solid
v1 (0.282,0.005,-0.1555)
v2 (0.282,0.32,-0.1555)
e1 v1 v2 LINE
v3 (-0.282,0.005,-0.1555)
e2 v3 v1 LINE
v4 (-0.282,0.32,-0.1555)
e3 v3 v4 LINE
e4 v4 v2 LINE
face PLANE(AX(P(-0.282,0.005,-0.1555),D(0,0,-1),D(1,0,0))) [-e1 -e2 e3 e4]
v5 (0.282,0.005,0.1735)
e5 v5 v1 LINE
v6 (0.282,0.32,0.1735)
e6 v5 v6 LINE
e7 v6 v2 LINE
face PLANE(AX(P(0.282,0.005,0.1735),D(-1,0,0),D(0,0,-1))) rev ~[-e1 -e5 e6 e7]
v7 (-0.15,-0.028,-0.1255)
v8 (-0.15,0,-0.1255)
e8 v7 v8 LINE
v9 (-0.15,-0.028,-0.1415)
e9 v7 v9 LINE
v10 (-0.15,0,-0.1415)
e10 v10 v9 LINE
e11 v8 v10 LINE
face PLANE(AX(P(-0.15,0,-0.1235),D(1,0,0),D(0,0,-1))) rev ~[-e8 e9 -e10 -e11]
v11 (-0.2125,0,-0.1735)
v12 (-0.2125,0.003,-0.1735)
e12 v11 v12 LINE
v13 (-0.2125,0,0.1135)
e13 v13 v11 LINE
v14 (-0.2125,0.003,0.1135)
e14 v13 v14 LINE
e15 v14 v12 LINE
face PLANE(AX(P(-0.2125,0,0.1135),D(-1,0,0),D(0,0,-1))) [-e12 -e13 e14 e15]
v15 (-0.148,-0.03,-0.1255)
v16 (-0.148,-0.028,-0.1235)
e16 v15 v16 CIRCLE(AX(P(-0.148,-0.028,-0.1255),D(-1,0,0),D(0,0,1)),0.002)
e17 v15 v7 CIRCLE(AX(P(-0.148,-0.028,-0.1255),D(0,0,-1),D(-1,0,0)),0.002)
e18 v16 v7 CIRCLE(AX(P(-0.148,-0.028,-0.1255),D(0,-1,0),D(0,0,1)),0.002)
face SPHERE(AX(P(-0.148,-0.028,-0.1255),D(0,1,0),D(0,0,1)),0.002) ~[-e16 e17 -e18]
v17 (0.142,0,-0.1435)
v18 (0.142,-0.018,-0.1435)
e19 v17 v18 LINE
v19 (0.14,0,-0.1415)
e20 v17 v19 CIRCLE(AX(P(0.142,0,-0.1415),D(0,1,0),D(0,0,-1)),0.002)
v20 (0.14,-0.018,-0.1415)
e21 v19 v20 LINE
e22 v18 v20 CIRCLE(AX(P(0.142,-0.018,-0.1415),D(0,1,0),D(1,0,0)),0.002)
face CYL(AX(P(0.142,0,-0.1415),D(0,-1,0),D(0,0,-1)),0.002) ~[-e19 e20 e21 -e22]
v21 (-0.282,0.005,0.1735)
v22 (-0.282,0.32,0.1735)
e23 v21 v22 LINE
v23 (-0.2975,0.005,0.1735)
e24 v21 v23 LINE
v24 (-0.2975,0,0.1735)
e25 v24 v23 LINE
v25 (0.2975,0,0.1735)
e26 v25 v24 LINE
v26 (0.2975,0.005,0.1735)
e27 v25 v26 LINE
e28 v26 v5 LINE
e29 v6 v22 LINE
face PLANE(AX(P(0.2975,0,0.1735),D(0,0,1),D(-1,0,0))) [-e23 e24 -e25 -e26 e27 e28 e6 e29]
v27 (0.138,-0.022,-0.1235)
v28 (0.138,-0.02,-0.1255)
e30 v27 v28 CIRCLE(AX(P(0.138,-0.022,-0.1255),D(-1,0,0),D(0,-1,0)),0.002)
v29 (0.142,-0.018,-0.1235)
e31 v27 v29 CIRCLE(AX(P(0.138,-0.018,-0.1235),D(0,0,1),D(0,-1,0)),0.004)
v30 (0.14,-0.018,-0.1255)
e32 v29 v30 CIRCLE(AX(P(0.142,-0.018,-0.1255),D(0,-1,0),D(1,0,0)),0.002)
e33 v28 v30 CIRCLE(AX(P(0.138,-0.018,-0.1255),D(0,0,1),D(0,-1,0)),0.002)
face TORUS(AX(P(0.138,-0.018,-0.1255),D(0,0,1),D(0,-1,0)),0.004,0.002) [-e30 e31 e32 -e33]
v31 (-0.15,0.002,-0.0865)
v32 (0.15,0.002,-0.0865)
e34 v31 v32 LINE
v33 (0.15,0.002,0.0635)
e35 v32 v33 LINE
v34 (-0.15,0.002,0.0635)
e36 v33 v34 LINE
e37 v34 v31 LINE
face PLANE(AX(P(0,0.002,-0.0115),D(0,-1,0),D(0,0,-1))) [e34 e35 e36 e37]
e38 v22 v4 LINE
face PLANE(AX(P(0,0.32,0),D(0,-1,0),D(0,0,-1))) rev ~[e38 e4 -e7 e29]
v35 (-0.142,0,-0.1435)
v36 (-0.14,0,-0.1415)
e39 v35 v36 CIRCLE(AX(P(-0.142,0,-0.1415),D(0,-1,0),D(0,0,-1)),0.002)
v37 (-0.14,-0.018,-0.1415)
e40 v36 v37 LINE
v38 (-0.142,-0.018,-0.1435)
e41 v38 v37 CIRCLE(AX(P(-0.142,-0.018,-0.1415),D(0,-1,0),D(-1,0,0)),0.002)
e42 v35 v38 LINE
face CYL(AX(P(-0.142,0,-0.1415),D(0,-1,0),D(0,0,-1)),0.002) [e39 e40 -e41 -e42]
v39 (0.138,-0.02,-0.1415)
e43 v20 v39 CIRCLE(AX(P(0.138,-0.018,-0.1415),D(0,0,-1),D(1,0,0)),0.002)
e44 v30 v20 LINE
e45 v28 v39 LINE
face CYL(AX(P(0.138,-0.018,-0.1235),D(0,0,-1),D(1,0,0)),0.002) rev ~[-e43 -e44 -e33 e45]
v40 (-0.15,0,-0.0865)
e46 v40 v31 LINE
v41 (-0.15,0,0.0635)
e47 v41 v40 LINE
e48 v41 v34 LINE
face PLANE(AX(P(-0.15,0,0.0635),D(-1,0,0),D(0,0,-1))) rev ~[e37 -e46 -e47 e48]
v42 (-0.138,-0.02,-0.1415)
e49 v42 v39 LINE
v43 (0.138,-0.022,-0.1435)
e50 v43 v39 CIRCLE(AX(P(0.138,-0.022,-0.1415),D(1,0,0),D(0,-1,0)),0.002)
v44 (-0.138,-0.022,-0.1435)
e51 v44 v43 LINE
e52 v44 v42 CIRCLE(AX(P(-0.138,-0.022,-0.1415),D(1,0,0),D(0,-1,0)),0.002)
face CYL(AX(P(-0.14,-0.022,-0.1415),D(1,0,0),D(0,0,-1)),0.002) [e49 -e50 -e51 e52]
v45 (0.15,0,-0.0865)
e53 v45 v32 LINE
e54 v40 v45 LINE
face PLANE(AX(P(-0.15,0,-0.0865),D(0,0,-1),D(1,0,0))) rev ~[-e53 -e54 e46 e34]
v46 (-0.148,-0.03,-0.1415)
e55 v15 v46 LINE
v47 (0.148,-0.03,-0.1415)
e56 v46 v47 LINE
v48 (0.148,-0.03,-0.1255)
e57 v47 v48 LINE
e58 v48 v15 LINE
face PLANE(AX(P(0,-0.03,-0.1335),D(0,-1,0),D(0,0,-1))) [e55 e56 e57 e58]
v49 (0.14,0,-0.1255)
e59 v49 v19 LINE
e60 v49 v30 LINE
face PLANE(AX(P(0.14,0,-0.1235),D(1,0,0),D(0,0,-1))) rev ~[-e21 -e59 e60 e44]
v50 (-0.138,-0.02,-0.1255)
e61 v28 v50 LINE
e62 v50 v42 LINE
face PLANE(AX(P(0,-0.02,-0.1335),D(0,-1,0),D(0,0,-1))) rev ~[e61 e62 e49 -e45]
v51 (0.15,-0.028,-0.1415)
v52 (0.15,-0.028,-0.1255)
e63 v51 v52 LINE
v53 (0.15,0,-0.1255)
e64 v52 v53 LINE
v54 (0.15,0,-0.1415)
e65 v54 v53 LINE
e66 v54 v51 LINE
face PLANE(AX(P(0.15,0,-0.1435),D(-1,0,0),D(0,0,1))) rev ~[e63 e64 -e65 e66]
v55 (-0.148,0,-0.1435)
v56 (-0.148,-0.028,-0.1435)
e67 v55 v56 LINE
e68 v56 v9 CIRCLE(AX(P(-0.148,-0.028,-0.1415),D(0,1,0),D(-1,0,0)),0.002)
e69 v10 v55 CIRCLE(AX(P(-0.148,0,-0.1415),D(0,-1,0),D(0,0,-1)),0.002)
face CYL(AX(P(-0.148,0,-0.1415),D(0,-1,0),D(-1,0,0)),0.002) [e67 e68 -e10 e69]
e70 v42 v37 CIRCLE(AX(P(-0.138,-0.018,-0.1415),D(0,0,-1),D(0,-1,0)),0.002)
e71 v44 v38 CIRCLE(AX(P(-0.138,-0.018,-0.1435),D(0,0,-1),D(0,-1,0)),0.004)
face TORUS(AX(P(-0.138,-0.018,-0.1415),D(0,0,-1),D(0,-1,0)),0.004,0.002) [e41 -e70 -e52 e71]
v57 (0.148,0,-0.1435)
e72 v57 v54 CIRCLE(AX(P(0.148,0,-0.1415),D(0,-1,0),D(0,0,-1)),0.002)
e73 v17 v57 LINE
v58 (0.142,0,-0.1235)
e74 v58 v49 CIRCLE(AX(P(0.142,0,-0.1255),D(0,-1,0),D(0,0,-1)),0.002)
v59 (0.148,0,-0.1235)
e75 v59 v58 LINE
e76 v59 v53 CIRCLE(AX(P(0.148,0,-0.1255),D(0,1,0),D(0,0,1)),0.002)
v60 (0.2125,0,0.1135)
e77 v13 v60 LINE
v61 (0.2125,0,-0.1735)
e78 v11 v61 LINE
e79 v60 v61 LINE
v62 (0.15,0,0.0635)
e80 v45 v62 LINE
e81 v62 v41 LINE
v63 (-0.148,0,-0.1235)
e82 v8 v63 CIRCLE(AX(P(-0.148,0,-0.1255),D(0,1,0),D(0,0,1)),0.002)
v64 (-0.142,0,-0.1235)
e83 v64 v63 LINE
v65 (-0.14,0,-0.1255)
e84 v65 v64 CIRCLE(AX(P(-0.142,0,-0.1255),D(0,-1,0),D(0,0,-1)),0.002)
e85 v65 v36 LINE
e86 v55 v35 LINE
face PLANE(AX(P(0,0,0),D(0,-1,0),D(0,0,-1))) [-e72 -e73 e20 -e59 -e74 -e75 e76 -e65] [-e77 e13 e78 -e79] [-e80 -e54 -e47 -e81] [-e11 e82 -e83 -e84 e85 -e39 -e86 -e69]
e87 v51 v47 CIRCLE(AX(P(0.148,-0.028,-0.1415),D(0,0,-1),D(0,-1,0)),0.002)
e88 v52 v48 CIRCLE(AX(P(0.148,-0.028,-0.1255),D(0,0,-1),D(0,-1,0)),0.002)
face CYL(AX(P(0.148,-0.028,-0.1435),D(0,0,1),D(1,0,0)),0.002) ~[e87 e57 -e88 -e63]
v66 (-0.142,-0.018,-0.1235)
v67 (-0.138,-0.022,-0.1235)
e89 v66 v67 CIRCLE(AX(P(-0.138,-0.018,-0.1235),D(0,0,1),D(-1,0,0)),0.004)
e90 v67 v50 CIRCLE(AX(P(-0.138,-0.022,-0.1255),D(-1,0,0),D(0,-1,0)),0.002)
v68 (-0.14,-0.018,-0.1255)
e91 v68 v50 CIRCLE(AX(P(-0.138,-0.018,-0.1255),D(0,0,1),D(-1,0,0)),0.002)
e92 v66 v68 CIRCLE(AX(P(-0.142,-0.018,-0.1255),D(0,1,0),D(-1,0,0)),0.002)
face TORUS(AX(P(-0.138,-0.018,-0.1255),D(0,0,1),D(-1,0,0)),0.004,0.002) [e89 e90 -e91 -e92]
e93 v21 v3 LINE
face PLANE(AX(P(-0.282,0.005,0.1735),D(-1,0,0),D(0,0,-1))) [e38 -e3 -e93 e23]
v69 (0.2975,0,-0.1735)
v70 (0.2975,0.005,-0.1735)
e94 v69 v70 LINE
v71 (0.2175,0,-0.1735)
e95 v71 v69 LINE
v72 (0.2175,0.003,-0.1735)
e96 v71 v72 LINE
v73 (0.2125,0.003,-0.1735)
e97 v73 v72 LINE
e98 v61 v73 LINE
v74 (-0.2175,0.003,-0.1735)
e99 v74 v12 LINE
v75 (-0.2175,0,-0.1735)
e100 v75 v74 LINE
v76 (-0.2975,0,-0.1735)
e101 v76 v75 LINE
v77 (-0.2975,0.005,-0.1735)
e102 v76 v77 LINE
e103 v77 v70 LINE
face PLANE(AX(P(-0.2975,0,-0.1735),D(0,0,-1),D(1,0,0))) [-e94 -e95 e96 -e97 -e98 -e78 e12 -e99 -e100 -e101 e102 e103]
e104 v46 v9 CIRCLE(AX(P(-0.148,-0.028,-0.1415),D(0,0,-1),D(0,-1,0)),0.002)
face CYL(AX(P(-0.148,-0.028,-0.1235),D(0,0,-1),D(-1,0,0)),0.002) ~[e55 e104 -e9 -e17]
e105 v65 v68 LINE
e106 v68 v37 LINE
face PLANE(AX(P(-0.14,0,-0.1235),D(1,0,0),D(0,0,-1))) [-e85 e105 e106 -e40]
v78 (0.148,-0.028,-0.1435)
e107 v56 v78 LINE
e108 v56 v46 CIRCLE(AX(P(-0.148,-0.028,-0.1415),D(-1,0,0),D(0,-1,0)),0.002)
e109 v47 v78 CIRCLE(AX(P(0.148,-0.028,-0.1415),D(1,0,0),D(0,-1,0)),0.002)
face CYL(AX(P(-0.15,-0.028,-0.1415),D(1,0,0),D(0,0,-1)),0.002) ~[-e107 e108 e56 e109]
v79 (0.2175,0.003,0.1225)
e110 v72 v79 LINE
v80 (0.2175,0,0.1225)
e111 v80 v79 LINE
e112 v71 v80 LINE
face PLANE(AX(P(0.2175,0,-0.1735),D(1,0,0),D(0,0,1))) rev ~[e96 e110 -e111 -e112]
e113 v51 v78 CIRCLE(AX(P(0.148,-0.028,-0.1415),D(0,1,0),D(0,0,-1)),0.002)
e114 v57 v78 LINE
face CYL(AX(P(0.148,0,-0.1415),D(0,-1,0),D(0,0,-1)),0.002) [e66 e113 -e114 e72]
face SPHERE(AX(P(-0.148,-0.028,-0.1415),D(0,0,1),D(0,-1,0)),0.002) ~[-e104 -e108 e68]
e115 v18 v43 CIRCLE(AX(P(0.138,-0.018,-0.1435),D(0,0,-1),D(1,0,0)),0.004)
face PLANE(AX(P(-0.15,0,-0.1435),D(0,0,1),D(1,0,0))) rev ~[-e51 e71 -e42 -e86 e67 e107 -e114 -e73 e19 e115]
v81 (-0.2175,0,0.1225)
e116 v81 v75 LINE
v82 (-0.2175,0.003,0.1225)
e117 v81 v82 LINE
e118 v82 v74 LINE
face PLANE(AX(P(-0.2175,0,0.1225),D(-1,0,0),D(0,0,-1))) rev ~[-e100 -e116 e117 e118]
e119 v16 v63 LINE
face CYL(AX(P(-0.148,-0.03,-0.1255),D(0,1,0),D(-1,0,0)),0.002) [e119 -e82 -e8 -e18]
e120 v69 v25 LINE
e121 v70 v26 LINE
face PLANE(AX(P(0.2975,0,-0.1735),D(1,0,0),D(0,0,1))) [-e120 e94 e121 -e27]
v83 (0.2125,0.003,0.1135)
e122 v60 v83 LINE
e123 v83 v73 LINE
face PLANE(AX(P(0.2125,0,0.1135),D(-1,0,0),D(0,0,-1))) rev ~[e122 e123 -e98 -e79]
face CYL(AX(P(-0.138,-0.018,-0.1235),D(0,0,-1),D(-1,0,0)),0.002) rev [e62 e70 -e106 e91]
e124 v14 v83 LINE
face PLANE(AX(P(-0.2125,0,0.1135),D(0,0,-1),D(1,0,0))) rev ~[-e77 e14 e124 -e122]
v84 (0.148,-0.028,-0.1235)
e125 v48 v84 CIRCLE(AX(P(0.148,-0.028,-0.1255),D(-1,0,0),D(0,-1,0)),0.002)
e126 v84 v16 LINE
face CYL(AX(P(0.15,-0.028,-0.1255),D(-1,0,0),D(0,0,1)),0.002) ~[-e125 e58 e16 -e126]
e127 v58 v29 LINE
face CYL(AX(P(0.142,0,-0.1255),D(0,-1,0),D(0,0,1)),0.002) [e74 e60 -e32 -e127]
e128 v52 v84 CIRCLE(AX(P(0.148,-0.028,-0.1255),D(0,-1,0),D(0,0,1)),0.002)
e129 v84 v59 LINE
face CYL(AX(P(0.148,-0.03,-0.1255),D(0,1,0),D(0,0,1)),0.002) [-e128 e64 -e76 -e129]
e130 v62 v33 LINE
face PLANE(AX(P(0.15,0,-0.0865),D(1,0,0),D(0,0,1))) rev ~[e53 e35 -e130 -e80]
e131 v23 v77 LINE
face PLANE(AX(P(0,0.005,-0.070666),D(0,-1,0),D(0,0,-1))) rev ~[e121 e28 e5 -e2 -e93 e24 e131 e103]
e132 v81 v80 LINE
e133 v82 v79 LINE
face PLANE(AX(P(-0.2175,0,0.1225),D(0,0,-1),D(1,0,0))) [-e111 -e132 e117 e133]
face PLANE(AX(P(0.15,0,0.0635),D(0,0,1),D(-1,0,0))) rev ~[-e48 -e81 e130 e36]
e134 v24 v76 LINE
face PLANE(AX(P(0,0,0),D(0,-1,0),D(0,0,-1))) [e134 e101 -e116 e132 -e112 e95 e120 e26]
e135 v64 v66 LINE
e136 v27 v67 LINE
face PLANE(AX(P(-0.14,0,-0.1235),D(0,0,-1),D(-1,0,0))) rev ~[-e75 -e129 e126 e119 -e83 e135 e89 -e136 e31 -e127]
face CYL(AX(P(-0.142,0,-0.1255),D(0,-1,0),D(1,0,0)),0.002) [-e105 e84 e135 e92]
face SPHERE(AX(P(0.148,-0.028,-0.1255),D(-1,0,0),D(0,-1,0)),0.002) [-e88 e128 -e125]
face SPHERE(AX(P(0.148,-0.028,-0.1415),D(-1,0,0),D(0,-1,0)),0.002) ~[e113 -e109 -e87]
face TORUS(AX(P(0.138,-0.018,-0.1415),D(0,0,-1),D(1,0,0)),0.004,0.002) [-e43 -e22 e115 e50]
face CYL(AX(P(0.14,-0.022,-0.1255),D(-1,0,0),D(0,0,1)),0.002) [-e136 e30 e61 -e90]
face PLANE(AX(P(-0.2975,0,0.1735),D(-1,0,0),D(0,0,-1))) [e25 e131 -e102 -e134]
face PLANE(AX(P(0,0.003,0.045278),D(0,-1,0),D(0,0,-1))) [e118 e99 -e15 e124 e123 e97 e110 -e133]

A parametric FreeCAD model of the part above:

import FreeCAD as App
import Part
import Sketcher

V = App.Vector
Q = App.Units.Quantity


def edges_at(feature, points):
    """Names of the edges that pass closest to the given points."""
    edges = feature.Shape.Edges
    near = lambda p: min(range(len(edges)), key=lambda i: edges[i].distToShape(Part.Vertex(*p))[0])
    return sorted({f"Edge{near(p) + 1}" for p in points})


def add_polygon(sketch, points):
    """Adds a closed chain of lines whose ends are joined by coincident constraints."""
    first, n = sketch.GeometryCount, len(points)
    for a, b in zip(points, points[1:] + points[:1]):
        sketch.addGeometry(Part.LineSegment(App.Vector(*a, 0), App.Vector(*b, 0)), False)
    for i in range(n):
        sketch.addConstraint(Sketcher.Constraint("Coincident", first + i, 2, first + (i + 1) % n, 1))

doc = App.newDocument("Part")
body = doc.addObject("PartDesign::Body", "Body")

sketch1 = body.newObject("Sketcher::SketchObject", "Sketch")
sketch1.AttachmentSupport = (doc.getObject("XZ_Plane"), [""])
sketch1.MapMode = "FlatFace"
add_polygon(sketch1, [(-0.3, 0.17), (-0.3, -0.17), (0.3, -0.17), (0.3, 0.17)])
sketch1.addConstraint(Sketcher.Constraint("Vertical", 0))
sketch1.addConstraint(Sketcher.Constraint("Horizontal", 1))
sketch1.addConstraint(Sketcher.Constraint("Vertical", 2))
sketch1.addConstraint(Sketcher.Constraint("Horizontal", 3))
sketch1.addConstraint(Sketcher.Constraint("Symmetric", 0, 2, 2, 2, -1, 1))
sketch1.addConstraint(Sketcher.Constraint("DistanceX", 0, 2, -1, 1, Q("0.2975 mm")))
sketch1.addConstraint(Sketcher.Constraint("DistanceY", 0, 2, 0, 1, Q("0.347 mm")))
pad1 = body.newObject("PartDesign::Pad", "Pad")
pad1.Profile = sketch1
pad1.Length = 0.32
pad1.Reversed = True

sketch2 = body.newObject("Sketcher::SketchObject", "Sketch001")
sketch2.AttachmentSupport = (doc.getObject("XZ_Plane"), [""])
sketch2.MapMode = "FlatFace"
sketch2.AttachmentOffset = App.Placement(V(0, 0, -0.005), App.Rotation())
add_polygon(sketch2, [(0.297, -0.173), (0.297, 0.173), (0.282, 0.173), (0.282, -0.155), (-0.282, -0.155), (-0.282, 0.173), (-0.297, 0.173), (-0.297, -0.173)])
sketch2.addConstraint(Sketcher.Constraint("Vertical", 0))
sketch2.addConstraint(Sketcher.Constraint("Horizontal", 1))
sketch2.addConstraint(Sketcher.Constraint("Vertical", 2))
sketch2.addConstraint(Sketcher.Constraint("Horizontal", 3))
sketch2.addConstraint(Sketcher.Constraint("Vertical", 4))
sketch2.addConstraint(Sketcher.Constraint("Horizontal", 5))
sketch2.addConstraint(Sketcher.Constraint("Vertical", 6))
sketch2.addConstraint(Sketcher.Constraint("Horizontal", 7))
sketch2.addConstraint(Sketcher.Constraint("Symmetric", 0, 2, 6, 2, -1, 1))
sketch2.addConstraint(Sketcher.Constraint("Symmetric", 1, 2, 4, 2, -2))
sketch2.addConstraint(Sketcher.Constraint("DistanceX", -1, 1, 1, 2, Q("0.282 mm")))
sketch2.addConstraint(Sketcher.Constraint("DistanceX", 7, 1, 7, 2, Q("0.595 mm")))
sketch2.addConstraint(Sketcher.Constraint("DistanceY", 0, 1, 0, 2, Q("0.347 mm")))
sketch2.addConstraint(Sketcher.Constraint("DistanceY", 2, 2, 2, 1, Q("0.329 mm")))
pocket1 = body.newObject("PartDesign::Pocket", "Pocket")
pocket1.Profile = sketch2
pocket1.Type = "ThroughAll"

sketch3 = body.newObject("Sketcher::SketchObject", "Sketch002")
sketch3.AttachmentSupport = (doc.getObject("XZ_Plane"), [""])
sketch3.MapMode = "FlatFace"
add_polygon(sketch3, [(0.217, 0.122), (-0.217, 0.122), (-0.217, -0.173), (-0.212, -0.173), (-0.212, 0.114), (0.212, 0.114), (0.212, -0.173), (0.217, -0.173)])
sketch3.addConstraint(Sketcher.Constraint("Horizontal", 0))
sketch3.addConstraint(Sketcher.Constraint("Vertical", 1))
sketch3.addConstraint(Sketcher.Constraint("Horizontal", 2))
sketch3.addConstraint(Sketcher.Constraint("Vertical", 3))
sketch3.addConstraint(Sketcher.Constraint("Horizontal", 4))
sketch3.addConstraint(Sketcher.Constraint("Vertical", 5))
sketch3.addConstraint(Sketcher.Constraint("Horizontal", 6))
sketch3.addConstraint(Sketcher.Constraint("Vertical", 7))
sketch3.addConstraint(Sketcher.Constraint("Symmetric", 2, 2, 5, 2, -2))
sketch3.addConstraint(Sketcher.Constraint("Equal", 2, 6))
sketch3.addConstraint(Sketcher.Constraint("DistanceX", 0, 2, -1, 1, Q("0.2175 mm")))
sketch3.addConstraint(Sketcher.Constraint("DistanceX", 2, 1, 2, 2, Q("0.005 mm")))
sketch3.addConstraint(Sketcher.Constraint("DistanceY", 1, 2, 1, 1, Q("0.296 mm")))
sketch3.addConstraint(Sketcher.Constraint("DistanceY", 3, 1, 3, 2, Q("0.287 mm")))
sketch3.addConstraint(Sketcher.Constraint("DistanceY", -1, 1, 0, 2, Q("0.1225 mm")))
pocket2 = body.newObject("PartDesign::Pocket", "Pocket001")
pocket2.Profile = sketch3
pocket2.Length = 0.003

sketch4 = body.newObject("Sketcher::SketchObject", "Sketch003")
sketch4.AttachmentSupport = (doc.getObject("XZ_Plane"), [""])
sketch4.MapMode = "FlatFace"
add_polygon(sketch4, [(-0.15, 0.06), (-0.15, -0.09), (0.15, -0.09), (0.15, 0.06)])
sketch4.addConstraint(Sketcher.Constraint("Vertical", 0))
sketch4.addConstraint(Sketcher.Constraint("Horizontal", 1))
sketch4.addConstraint(Sketcher.Constraint("Vertical", 2))
sketch4.addConstraint(Sketcher.Constraint("Horizontal", 3))
sketch4.addConstraint(Sketcher.Constraint("DistanceY", 0, 2, 0, 1, Q("0.15 mm")))
sketch4.addConstraint(Sketcher.Constraint("DistanceX", 0, 2, -1, 1, Q("0.15 mm")))
sketch4.addConstraint(Sketcher.Constraint("DistanceX", -1, 1, 1, 2, Q("0.15 mm")))
sketch4.addConstraint(Sketcher.Constraint("DistanceY", 0, 2, -1, 1, Q("0.0865 mm")))
pocket3 = body.newObject("PartDesign::Pocket", "Pocket002")
pocket3.Profile = sketch4
pocket3.Length = 0.002

sketch5 = body.newObject("Sketcher::SketchObject", "Sketch004")
sketch5.AttachmentSupport = (doc.getObject("XZ_Plane"), [""])
sketch5.MapMode = "FlatFace"
add_polygon(sketch5, [(0.14, -0.143), (0.15, -0.143), (0.15, -0.123), (0.14, -0.123)])
add_polygon(sketch5, [(-0.14, -0.123), (-0.15, -0.123), (-0.15, -0.143), (-0.14, -0.143)])
sketch5.addConstraint(Sketcher.Constraint("Horizontal", 0))
sketch5.addConstraint(Sketcher.Constraint("Vertical", 1))
sketch5.addConstraint(Sketcher.Constraint("Horizontal", 2))
sketch5.addConstraint(Sketcher.Constraint("Vertical", 3))
sketch5.addConstraint(Sketcher.Constraint("Horizontal", 4))
sketch5.addConstraint(Sketcher.Constraint("Vertical", 5))
sketch5.addConstraint(Sketcher.Constraint("Horizontal", 6))
sketch5.addConstraint(Sketcher.Constraint("Vertical", 7))
sketch5.addConstraint(Sketcher.Constraint("Symmetric", 1, 2, 4, 2, -2))
sketch5.addConstraint(Sketcher.Constraint("Symmetric", 3, 2, 6, 2, -2))
sketch5.addConstraint(Sketcher.Constraint("DistanceX", -1, 1, 0, 2, Q("0.15 mm")))
sketch5.addConstraint(Sketcher.Constraint("DistanceX", -1, 1, 2, 2, Q("0.14 mm")))
sketch5.addConstraint(Sketcher.Constraint("DistanceY", 1, 1, 1, 2, Q("0.02 mm")))
sketch5.addConstraint(Sketcher.Constraint("DistanceY", 0, 2, -1, 1, Q("0.1435 mm")))
pad2 = body.newObject("PartDesign::Pad", "Pad001")
pad2.Profile = sketch5
pad2.Length = 0.02

sketch6 = body.newObject("Sketcher::SketchObject", "Sketch005")
sketch6.AttachmentSupport = (doc.getObject("XZ_Plane"), [""])
sketch6.MapMode = "FlatFace"
sketch6.AttachmentOffset = App.Placement(V(0, 0, 0.02), App.Rotation())
add_polygon(sketch6, [(0.15, -0.143), (0.15, -0.123), (-0.15, -0.123), (-0.15, -0.143)])
sketch6.addConstraint(Sketcher.Constraint("Vertical", 0))
sketch6.addConstraint(Sketcher.Constraint("Horizontal", 1))
sketch6.addConstraint(Sketcher.Constraint("Vertical", 2))
sketch6.addConstraint(Sketcher.Constraint("Horizontal", 3))
sketch6.addConstraint(Sketcher.Constraint("DistanceX", 1, 2, 1, 1, Q("0.3 mm")))
sketch6.addConstraint(Sketcher.Constraint("DistanceY", 0, 1, 0, 2, Q("0.02 mm")))
sketch6.addConstraint(Sketcher.Constraint("DistanceX", -1, 1, 0, 2, Q("0.15 mm")))
sketch6.addConstraint(Sketcher.Constraint("DistanceY", 0, 2, -1, 1, Q("0.1235 mm")))
pad3 = body.newObject("PartDesign::Pad", "Pad002")
pad3.Profile = sketch6
pad3.Length = 0.01
doc.recompute()

fillet = body.newObject("PartDesign::Fillet", "Fillet")
fillet.Base = (pad3, edges_at(pad3, [
    (-0.15, -0.015, -0.123),
    (-0.14, -0.01, -0.123),
    (0, -0.02, -0.123),
    (0, -0.03, -0.123),
    (-0.15, -0.03, -0.134),
    (0, -0.03, -0.143),
    (0.15, -0.03, -0.134),
    (0.15, -0.015, -0.123),
    (0.14, -0.01, -0.123),
    (0.15, -0.015, -0.143),
    (0.14, -0.01, -0.143),
    (0, -0.02, -0.143),
    (-0.15, -0.015, -0.143),
    (-0.14, -0.01, -0.143),
    (-0.14, -0.02, -0.134),
    (0.14, -0.02, -0.134),
]))
fillet.Radius = 0.002

doc.recompute()
